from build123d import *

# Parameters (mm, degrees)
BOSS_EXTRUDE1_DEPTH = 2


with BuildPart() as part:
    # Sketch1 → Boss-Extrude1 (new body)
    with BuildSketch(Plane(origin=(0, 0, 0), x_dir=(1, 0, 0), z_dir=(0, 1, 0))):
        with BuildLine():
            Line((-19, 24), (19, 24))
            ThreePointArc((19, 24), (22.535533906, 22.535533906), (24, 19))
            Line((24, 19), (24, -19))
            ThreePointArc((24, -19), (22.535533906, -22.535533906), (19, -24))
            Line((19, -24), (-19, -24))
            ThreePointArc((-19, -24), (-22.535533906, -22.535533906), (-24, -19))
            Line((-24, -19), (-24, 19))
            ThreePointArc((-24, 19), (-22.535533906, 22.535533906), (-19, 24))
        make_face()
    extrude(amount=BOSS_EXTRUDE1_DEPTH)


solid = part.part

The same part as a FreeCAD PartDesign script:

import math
import FreeCAD as App
import Part
import Sketcher

V = App.Vector
Q = App.Units.Quantity

doc = App.newDocument("Part")
body = doc.addObject("PartDesign::Body", "Body")

sketch1 = doc.addObject("Sketcher::SketchObject", "Sketch")
body.addObject(sketch1)
sketch1.AttachmentSupport = (doc.XZ_Plane, [""])
sketch1.MapMode = "FlatFace"
sketch1.addGeometry([
    Part.LineSegment(V(19, -24, 0), V(-19, -24, 0)),
    Part.ArcOfCircle(Part.Circle(V(-19, -19, 0), V(0, 0, 1), 5), math.radians(180), math.radians(270)),
    Part.LineSegment(V(-24, -19, 0), V(-24, 19, 0)),
    Part.ArcOfCircle(Part.Circle(V(-19, 19, 0), V(0, 0, 1), 5), math.radians(90), math.radians(180)),
    Part.LineSegment(V(-19, 24, 0), V(19, 24, 0)),
    Part.ArcOfCircle(Part.Circle(V(19, 19, 0), V(0, 0, 1), 5), math.radians(0), math.radians(90)),
    Part.LineSegment(V(24, 19, 0), V(24, -19, 0)),
    Part.ArcOfCircle(Part.Circle(V(19, -19, 0), V(0, 0, 1), 5), math.radians(-90), math.radians(0)),
], False)
sketch1.addConstraint([
    Sketcher.Constraint("Tangent", 0, 2, 1, 2),
    Sketcher.Constraint("Tangent", 1, 1, 2, 1),
    Sketcher.Constraint("Tangent", 2, 2, 3, 2),
    Sketcher.Constraint("Tangent", 3, 1, 4, 1),
    Sketcher.Constraint("Tangent", 4, 2, 5, 2),
    Sketcher.Constraint("Tangent", 5, 1, 6, 1),
    Sketcher.Constraint("Tangent", 6, 2, 7, 2),
    Sketcher.Constraint("Tangent", 7, 1, 0, 1),
    Sketcher.Constraint("Horizontal", 0),
    Sketcher.Constraint("Vertical", 2),
    Sketcher.Constraint("Horizontal", 4),
    Sketcher.Constraint("Vertical", 6),
    Sketcher.Constraint("Equal", 1, 3),
    Sketcher.Constraint("Equal", 3, 5),
    Sketcher.Constraint("Equal", 5, 7),
    Sketcher.Constraint("Symmetric", 1, 3, 5, 3, -1, 1),
    Sketcher.Constraint("Equal", 4, 2),
    Sketcher.Constraint("Radius", 1, Q("5 mm")),
    Sketcher.Constraint("DistanceX", 0, 2, 0, 1, Q("38 mm")),
])
pad1 = doc.addObject("PartDesign::Pad", "Pad")
body.addObject(pad1)
pad1.Profile = sketch1
pad1.Length = 2
pad1.Reversed = True

doc.recompute()
